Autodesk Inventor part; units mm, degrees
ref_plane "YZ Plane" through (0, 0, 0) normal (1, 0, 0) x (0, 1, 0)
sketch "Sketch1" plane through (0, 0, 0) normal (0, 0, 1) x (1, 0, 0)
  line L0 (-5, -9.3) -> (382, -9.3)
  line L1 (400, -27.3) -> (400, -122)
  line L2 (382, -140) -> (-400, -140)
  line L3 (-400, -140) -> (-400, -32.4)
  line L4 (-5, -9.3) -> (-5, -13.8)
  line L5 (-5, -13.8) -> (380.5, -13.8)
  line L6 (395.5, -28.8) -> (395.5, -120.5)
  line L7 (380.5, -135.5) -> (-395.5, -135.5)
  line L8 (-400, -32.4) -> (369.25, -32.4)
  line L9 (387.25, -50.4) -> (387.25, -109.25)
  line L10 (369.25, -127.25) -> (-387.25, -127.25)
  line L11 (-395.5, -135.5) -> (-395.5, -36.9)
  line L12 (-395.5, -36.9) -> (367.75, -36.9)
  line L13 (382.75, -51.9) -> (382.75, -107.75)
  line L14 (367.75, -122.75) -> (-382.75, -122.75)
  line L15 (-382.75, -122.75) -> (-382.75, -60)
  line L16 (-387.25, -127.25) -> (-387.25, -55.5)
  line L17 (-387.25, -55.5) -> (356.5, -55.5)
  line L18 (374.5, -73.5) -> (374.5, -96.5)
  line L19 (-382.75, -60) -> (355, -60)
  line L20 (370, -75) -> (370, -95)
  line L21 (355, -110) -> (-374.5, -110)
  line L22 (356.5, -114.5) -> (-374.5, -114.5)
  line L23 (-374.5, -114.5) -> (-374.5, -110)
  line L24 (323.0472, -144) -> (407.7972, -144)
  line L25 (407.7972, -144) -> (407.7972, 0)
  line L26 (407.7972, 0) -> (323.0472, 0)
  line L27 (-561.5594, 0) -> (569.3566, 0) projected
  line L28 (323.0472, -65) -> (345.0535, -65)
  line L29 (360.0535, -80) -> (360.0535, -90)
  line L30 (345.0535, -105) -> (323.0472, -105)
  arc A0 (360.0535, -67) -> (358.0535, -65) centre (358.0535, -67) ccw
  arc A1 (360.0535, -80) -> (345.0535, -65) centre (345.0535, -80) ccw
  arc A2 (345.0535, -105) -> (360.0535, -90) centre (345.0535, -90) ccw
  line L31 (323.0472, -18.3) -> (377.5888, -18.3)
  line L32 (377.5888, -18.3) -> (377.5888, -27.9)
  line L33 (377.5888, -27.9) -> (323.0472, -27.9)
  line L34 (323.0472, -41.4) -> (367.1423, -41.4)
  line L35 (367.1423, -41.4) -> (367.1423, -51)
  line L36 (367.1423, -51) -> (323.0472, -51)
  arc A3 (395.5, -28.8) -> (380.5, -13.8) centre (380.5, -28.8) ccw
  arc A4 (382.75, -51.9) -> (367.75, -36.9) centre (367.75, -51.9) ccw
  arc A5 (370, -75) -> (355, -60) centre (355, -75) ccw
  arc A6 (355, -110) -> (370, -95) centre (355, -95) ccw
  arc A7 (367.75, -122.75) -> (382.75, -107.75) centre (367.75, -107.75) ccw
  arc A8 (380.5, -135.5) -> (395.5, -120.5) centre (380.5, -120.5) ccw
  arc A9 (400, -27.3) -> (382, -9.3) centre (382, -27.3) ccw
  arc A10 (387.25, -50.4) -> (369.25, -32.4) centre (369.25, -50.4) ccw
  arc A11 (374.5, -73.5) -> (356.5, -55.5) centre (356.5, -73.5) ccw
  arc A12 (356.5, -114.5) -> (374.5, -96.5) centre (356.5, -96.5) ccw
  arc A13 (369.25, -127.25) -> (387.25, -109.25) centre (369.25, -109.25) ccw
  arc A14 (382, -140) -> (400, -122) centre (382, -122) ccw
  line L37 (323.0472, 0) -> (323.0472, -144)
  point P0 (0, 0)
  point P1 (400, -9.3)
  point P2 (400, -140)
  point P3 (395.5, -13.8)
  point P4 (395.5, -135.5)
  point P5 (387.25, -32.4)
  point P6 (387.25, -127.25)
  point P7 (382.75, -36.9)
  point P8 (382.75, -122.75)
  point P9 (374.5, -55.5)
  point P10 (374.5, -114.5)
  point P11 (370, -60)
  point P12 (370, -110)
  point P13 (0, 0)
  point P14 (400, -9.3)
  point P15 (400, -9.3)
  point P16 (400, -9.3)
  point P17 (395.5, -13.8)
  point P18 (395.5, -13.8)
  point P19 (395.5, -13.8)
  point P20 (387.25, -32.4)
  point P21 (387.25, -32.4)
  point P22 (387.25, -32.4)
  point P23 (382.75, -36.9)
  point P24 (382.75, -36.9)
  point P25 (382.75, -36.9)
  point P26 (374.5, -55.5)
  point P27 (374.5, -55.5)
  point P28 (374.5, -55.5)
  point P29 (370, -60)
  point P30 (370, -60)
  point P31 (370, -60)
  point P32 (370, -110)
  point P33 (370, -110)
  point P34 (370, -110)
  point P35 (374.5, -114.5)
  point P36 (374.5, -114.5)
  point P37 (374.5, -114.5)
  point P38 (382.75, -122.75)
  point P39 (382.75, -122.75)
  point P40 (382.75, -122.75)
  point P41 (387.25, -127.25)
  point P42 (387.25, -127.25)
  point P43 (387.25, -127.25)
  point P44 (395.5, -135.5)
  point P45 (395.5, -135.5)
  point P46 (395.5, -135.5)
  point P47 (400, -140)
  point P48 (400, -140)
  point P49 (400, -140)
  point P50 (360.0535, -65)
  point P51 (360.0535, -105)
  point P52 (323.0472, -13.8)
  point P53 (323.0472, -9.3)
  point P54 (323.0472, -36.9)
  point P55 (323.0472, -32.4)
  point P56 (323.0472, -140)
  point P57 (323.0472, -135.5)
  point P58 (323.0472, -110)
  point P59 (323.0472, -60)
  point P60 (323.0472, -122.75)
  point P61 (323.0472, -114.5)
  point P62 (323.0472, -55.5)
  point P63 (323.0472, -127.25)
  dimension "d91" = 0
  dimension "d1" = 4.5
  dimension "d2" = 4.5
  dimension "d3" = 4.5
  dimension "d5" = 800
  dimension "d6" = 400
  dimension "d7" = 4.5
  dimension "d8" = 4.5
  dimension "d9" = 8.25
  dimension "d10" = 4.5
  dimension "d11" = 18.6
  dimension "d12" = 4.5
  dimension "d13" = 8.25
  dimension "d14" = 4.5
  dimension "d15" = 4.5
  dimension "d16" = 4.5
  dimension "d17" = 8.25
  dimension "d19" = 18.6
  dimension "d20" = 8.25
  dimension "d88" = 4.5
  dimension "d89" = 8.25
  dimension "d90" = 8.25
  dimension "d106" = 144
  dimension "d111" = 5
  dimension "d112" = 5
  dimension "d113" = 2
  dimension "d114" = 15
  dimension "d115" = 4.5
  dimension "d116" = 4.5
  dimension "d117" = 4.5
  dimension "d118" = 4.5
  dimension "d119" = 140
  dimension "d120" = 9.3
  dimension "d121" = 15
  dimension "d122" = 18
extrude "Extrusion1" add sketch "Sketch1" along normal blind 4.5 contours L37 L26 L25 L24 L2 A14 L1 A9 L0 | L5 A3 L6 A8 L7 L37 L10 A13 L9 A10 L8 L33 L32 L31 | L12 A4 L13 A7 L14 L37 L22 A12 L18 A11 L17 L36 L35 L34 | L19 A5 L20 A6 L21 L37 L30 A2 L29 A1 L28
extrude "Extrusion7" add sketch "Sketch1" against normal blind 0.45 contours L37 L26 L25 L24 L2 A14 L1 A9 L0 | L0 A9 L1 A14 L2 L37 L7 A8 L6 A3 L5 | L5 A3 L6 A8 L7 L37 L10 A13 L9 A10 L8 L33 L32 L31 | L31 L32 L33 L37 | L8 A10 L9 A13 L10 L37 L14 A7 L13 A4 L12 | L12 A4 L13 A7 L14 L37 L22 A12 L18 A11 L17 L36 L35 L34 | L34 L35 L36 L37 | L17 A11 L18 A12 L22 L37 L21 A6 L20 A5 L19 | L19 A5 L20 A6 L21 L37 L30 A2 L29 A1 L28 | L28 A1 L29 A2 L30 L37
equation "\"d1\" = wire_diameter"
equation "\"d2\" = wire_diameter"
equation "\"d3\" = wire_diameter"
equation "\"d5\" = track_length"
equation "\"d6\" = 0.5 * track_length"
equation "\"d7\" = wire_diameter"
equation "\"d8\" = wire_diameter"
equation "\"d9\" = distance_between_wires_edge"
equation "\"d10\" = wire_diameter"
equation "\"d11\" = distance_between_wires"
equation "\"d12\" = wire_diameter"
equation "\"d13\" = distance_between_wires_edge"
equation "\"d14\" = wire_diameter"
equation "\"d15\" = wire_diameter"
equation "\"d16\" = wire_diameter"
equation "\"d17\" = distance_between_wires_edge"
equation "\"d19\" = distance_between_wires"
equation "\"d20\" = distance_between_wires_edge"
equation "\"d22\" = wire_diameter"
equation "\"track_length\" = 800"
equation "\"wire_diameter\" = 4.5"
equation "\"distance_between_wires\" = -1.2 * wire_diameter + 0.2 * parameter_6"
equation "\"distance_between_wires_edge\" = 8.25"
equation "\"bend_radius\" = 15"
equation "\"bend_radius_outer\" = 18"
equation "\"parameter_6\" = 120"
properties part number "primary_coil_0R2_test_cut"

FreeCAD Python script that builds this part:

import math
import FreeCAD as App
import Part
import Sketcher

V = App.Vector
Q = App.Units.Quantity

doc = App.newDocument("Part")
body = doc.addObject("PartDesign::Body", "Body")
body.AllowCompound = True

# Sketch on XY plane
sketch1 = body.newObject("Sketcher::SketchObject", "Sketch")
sketch1.AttachmentSupport = (doc.getObject("XY_Plane"), [""])
sketch1.MapMode = "FlatFace"
sketch1.addGeometry([
    Part.LineSegment(V(323, 0, 0), V(323, -9.3, 0)),  # 0
    Part.LineSegment(V(323, -9.3, 0), V(382, -9.3, 0)),  # 1
    Part.ArcOfCircle(Part.Circle(V(382, -27.3, 0), V(0, 0, 1), 18), math.radians(0), math.radians(90)),  # 2
    Part.LineSegment(V(400, -27.3, 0), V(400, -122, 0)),  # 3
    Part.ArcOfCircle(Part.Circle(V(382, -122, 0), V(0, 0, 1), 18), math.radians(-90), math.radians(0)),  # 4
    Part.LineSegment(V(382, -140, 0), V(323, -140, 0)),  # 5
    Part.LineSegment(V(323, -140, 0), V(323, -144, 0)),  # 6
    Part.LineSegment(V(323, -144, 0), V(407.8, -144, 0)),  # 7
    Part.LineSegment(V(407.8, -144, 0), V(407.8, 0, 0)),  # 8
    Part.LineSegment(V(407.8, 0, 0), V(323, 0, 0)),  # 9
    Part.LineSegment(V(380.5, -13.8, 0), V(323, -13.8, 0)),  # 10
    Part.LineSegment(V(323, -13.8, 0), V(323, -18.3, 0)),  # 11
    Part.LineSegment(V(323, -18.3, 0), V(377.6, -18.3, 0)),  # 12
    Part.LineSegment(V(377.6, -18.3, 0), V(377.6, -27.9, 0)),  # 13
    Part.LineSegment(V(377.6, -27.9, 0), V(323, -27.9, 0)),  # 14
    Part.LineSegment(V(323, -27.9, 0), V(323, -32.4, 0)),  # 15
    Part.LineSegment(V(323, -32.4, 0), V(369.2, -32.4, 0)),  # 16
    Part.ArcOfCircle(Part.Circle(V(369.2, -50.4, 0), V(0, 0, 1), 18), math.radians(0), math.radians(90)),  # 17
    Part.LineSegment(V(387.2, -50.4, 0), V(387.2, -109.2, 0)),  # 18
    Part.ArcOfCircle(Part.Circle(V(369.2, -109.2, 0), V(0, 0, 1), 18), math.radians(-90), math.radians(0)),  # 19
    Part.LineSegment(V(369.2, -127.2, 0), V(323, -127.2, 0)),  # 20
    Part.LineSegment(V(323, -127.2, 0), V(323, -135.5, 0)),  # 21
    Part.LineSegment(V(323, -135.5, 0), V(380.5, -135.5, 0)),  # 22
    Part.ArcOfCircle(Part.Circle(V(380.5, -120.5, 0), V(0, 0, 1), 15), math.radians(-90), math.radians(0)),  # 23
    Part.LineSegment(V(395.5, -120.5, 0), V(395.5, -28.8, 0)),  # 24
    Part.ArcOfCircle(Part.Circle(V(380.5, -28.8, 0), V(0, 0, 1), 15), math.radians(0), math.radians(90)),  # 25
    Part.LineSegment(V(367.8, -36.9, 0), V(323, -36.9, 0)),  # 26
    Part.LineSegment(V(323, -36.9, 0), V(323, -41.4, 0)),  # 27
    Part.LineSegment(V(323, -41.4, 0), V(367.1, -41.4, 0)),  # 28
    Part.LineSegment(V(367.1, -41.4, 0), V(367.1, -51, 0)),  # 29
    Part.LineSegment(V(367.1, -51, 0), V(323, -51, 0)),  # 30
    Part.LineSegment(V(323, -51, 0), V(323, -55.5, 0)),  # 31
    Part.LineSegment(V(323, -55.5, 0), V(356.5, -55.5, 0)),  # 32
    Part.ArcOfCircle(Part.Circle(V(356.5, -73.5, 0), V(0, 0, 1), 18), math.radians(0), math.radians(90)),  # 33
    Part.LineSegment(V(374.5, -73.5, 0), V(374.5, -96.5, 0)),  # 34
    Part.ArcOfCircle(Part.Circle(V(356.5, -96.5, 0), V(0, 0, 1), 18), math.radians(-90), math.radians(0)),  # 35
    Part.LineSegment(V(356.5, -114.5, 0), V(323, -114.5, 0)),  # 36
    Part.LineSegment(V(323, -114.5, 0), V(323, -122.8, 0)),  # 37
    Part.LineSegment(V(323, -122.8, 0), V(367.8, -122.8, 0)),  # 38
    Part.ArcOfCircle(Part.Circle(V(367.8, -107.8, 0), V(0, 0, 1), 15), math.radians(-90), math.radians(0)),  # 39
    Part.LineSegment(V(382.8, -107.8, 0), V(382.8, -51.9, 0)),  # 40
    Part.ArcOfCircle(Part.Circle(V(367.8, -51.9, 0), V(0, 0, 1), 15), math.radians(0), math.radians(90)),  # 41
    Part.LineSegment(V(355, -60, 0), V(323, -60, 0)),  # 42
    Part.LineSegment(V(323, -60, 0), V(323, -65, 0)),  # 43
    Part.LineSegment(V(323, -65, 0), V(345.1, -65, 0)),  # 44
    Part.ArcOfCircle(Part.Circle(V(345.1, -80, 0), V(0, 0, 1), 15), math.radians(0), math.radians(90)),  # 45
    Part.LineSegment(V(360.1, -80, 0), V(360.1, -90, 0)),  # 46
    Part.ArcOfCircle(Part.Circle(V(345.1, -90, 0), V(0, 0, 1), 15), math.radians(-90), math.radians(0)),  # 47
    Part.LineSegment(V(345.1, -105, 0), V(323, -105, 0)),  # 48
    Part.LineSegment(V(323, -105, 0), V(323, -110, 0)),  # 49
    Part.LineSegment(V(323, -110, 0), V(355, -110, 0)),  # 50
    Part.ArcOfCircle(Part.Circle(V(355, -95, 0), V(0, 0, 1), 15), math.radians(-90), math.radians(0)),  # 51
    Part.LineSegment(V(370, -95, 0), V(370, -75, 0)),  # 52
    Part.ArcOfCircle(Part.Circle(V(355, -75, 0), V(0, 0, 1), 15), math.radians(0), math.radians(90)),  # 53
], False)
sketch1.addConstraint([
    Sketcher.Constraint("Coincident", 0, 2, 1, 1),
    Sketcher.Constraint("Tangent", 1, 2, 2, 2),
    Sketcher.Constraint("Tangent", 2, 1, 3, 1),
    Sketcher.Constraint("Tangent", 3, 2, 4, 2),
    Sketcher.Constraint("Tangent", 4, 1, 5, 1),
    Sketcher.Constraint("Coincident", 5, 2, 6, 1),
    Sketcher.Constraint("Coincident", 6, 2, 7, 1),
    Sketcher.Constraint("Coincident", 7, 2, 8, 1),
    Sketcher.Constraint("Coincident", 8, 2, 9, 1),
    Sketcher.Constraint("Coincident", 9, 2, 0, 1),
    Sketcher.Constraint("Coincident", 10, 2, 11, 1),
    Sketcher.Constraint("Coincident", 11, 2, 12, 1),
    Sketcher.Constraint("Coincident", 12, 2, 13, 1),
    Sketcher.Constraint("Coincident", 13, 2, 14, 1),
    Sketcher.Constraint("Coincident", 14, 2, 15, 1),
    Sketcher.Constraint("Coincident", 15, 2, 16, 1),
    Sketcher.Constraint("Tangent", 16, 2, 17, 2),
    Sketcher.Constraint("Tangent", 17, 1, 18, 1),
    Sketcher.Constraint("Tangent", 18, 2, 19, 2),
    Sketcher.Constraint("Tangent", 19, 1, 20, 1),
    Sketcher.Constraint("Coincident", 20, 2, 21, 1),
    Sketcher.Constraint("Coincident", 21, 2, 22, 1),
    Sketcher.Constraint("Tangent", 22, 2, 23, 1),
    Sketcher.Constraint("Tangent", 23, 2, 24, 1),
    Sketcher.Constraint("Tangent", 24, 2, 25, 1),
    Sketcher.Constraint("Tangent", 25, 2, 10, 1),
    Sketcher.Constraint("Coincident", 26, 2, 27, 1),
    Sketcher.Constraint("Coincident", 27, 2, 28, 1),
    Sketcher.Constraint("Coincident", 28, 2, 29, 1),
    Sketcher.Constraint("Coincident", 29, 2, 30, 1),
    Sketcher.Constraint("Coincident", 30, 2, 31, 1),
    Sketcher.Constraint("Coincident", 31, 2, 32, 1),
    Sketcher.Constraint("Tangent", 32, 2, 33, 2),
    Sketcher.Constraint("Tangent", 33, 1, 34, 1),
    Sketcher.Constraint("Tangent", 34, 2, 35, 2),
    Sketcher.Constraint("Tangent", 35, 1, 36, 1),
    Sketcher.Constraint("Coincident", 36, 2, 37, 1),
    Sketcher.Constraint("Coincident", 37, 2, 38, 1),
    Sketcher.Constraint("Tangent", 38, 2, 39, 1),
    Sketcher.Constraint("Tangent", 39, 2, 40, 1),
    Sketcher.Constraint("Tangent", 40, 2, 41, 1),
    Sketcher.Constraint("Tangent", 41, 2, 26, 1),
    Sketcher.Constraint("Coincident", 42, 2, 43, 1),
    Sketcher.Constraint("Coincident", 43, 2, 44, 1),
    Sketcher.Constraint("Tangent", 44, 2, 45, 2),
    Sketcher.Constraint("Tangent", 45, 1, 46, 1),
    Sketcher.Constraint("Tangent", 46, 2, 47, 2),
    Sketcher.Constraint("Tangent", 47, 1, 48, 1),
    Sketcher.Constraint("Coincident", 48, 2, 49, 1),
    Sketcher.Constraint("Coincident", 49, 2, 50, 1),
    Sketcher.Constraint("Tangent", 50, 2, 51, 1),
    Sketcher.Constraint("Tangent", 51, 2, 52, 1),
    Sketcher.Constraint("Tangent", 52, 2, 53, 1),
    Sketcher.Constraint("Tangent", 53, 2, 42, 1),
    Sketcher.Constraint("Vertical", 0),
    Sketcher.Constraint("Horizontal", 1),
    Sketcher.Constraint("Vertical", 3),
    Sketcher.Constraint("Horizontal", 5),
    Sketcher.Constraint("Vertical", 6),
    Sketcher.Constraint("Horizontal", 7),
    Sketcher.Constraint("Vertical", 8),
    Sketcher.Constraint("Horizontal", 9),
    Sketcher.Constraint("Horizontal", 10),
    Sketcher.Constraint("Vertical", 11),
    Sketcher.Constraint("Horizontal", 12),
    Sketcher.Constraint("Vertical", 13),
    Sketcher.Constraint("Horizontal", 14),
    Sketcher.Constraint("Vertical", 15),
    Sketcher.Constraint("Horizontal", 16),
    Sketcher.Constraint("Vertical", 18),
    Sketcher.Constraint("Horizontal", 20),
    Sketcher.Constraint("Vertical", 21),
    Sketcher.Constraint("Horizontal", 22),
    Sketcher.Constraint("Vertical", 24),
    Sketcher.Constraint("Horizontal", 26),
    Sketcher.Constraint("Vertical", 27),
    Sketcher.Constraint("Horizontal", 28),
    Sketcher.Constraint("Vertical", 29),
    Sketcher.Constraint("Horizontal", 30),
    Sketcher.Constraint("Vertical", 31),
    Sketcher.Constraint("Horizontal", 32),
    Sketcher.Constraint("Vertical", 34),
    Sketcher.Constraint("Horizontal", 36),
    Sketcher.Constraint("Vertical", 37),
    Sketcher.Constraint("Horizontal", 38),
    Sketcher.Constraint("Vertical", 40),
    Sketcher.Constraint("Horizontal", 42),
    Sketcher.Constraint("Vertical", 43),
    Sketcher.Constraint("Horizontal", 44),
    Sketcher.Constraint("Vertical", 46),
    Sketcher.Constraint("Horizontal", 48),
    Sketcher.Constraint("Vertical", 49),
    Sketcher.Constraint("Horizontal", 50),
    Sketcher.Constraint("Vertical", 52),
    Sketcher.Constraint("Equal", 2, 4),
    Sketcher.Constraint("Equal", 4, 17),
    Sketcher.Constraint("Equal", 17, 19),
    Sketcher.Constraint("Equal", 23, 25),
    Sketcher.Constraint("Equal", 19, 33),
    Sketcher.Constraint("Equal", 33, 35),
    Sketcher.Constraint("Equal", 25, 39),
    Sketcher.Constraint("Equal", 39, 41),
    Sketcher.Constraint("Equal", 41, 45),
    Sketcher.Constraint("Equal", 45, 47),
    Sketcher.Constraint("Equal", 47, 51),
    Sketcher.Constraint("Equal", 51, 53),
    Sketcher.Constraint("PointOnObject", 8, 2, -1),
    Sketcher.Constraint("Vertical", 0, 2, 5, 2),
    Sketcher.Constraint("Vertical", 9, 2, 10, 2),
    Sketcher.Constraint("Vertical", 11, 2, 14, 2),
    Sketcher.Constraint("Vertical", 15, 2, 20, 2),
    Sketcher.Constraint("Vertical", 21, 2, 26, 2),
    Sketcher.Constraint("Vertical", 27, 2, 30, 2),
    Sketcher.Constraint("Vertical", 31, 2, 36, 2),
    Sketcher.Constraint("Vertical", 37, 2, 42, 2),
    Sketcher.Constraint("Vertical", 43, 2, 48, 2),
    Sketcher.Constraint("Equal", 11, 15),
    Sketcher.Constraint("Equal", 15, 27),
    Sketcher.Constraint("Equal", 13, 29),
    Sketcher.Constraint("Equal", 27, 31),
    Sketcher.Constraint("Equal", 21, 37),
    Sketcher.Constraint("Equal", 43, 49),
    Sketcher.Constraint("Radius", 2, Q("18 mm")),
    Sketcher.Constraint("Radius", 23, Q("15 mm")),
    Sketcher.Constraint("DistanceY", 8, 1, 8, 2, Q("144 mm")),
    Sketcher.Constraint("DistanceY", 43, 2, 43, 1, Q("5 mm")),
    Sketcher.Constraint("DistanceY", 0, 2, 0, 1, Q("9.3 mm")),
    Sketcher.Constraint("DistanceY", 11, 2, 11, 1, Q("4.5 mm")),
    Sketcher.Constraint("DistanceX", -1, 1, 2, 1, Q("400 mm")),
    Sketcher.Constraint("DistanceY", 4, 1, -1, 1, Q("140 mm")),
    Sketcher.Constraint("DistanceY", 21, 2, 21, 1, Q("8.25 mm")),
    Sketcher.Constraint("DistanceY", 34, 2, 34, 1, Q("23 mm")),
    Sketcher.Constraint("DistanceY", 46, 2, 46, 1, Q("10 mm")),
    Sketcher.Constraint("DistanceY", 13, 2, 13, 1, Q("9.6 mm")),
    Sketcher.Constraint("DistanceY", 24, 1, 24, 2, Q("91.7 mm")),
    Sketcher.Constraint("DistanceY", 45, 3, -1, 1, Q("80 mm")),
    Sketcher.Constraint("DistanceX", -1, 1, 51, 3, Q("355 mm")),
    Sketcher.Constraint("DistanceY", 29, 2, -1, 1, Q("51 mm")),
    Sketcher.Constraint("DistanceX", 7, 1, 7, 2, Q("84.75 mm")),
    Sketcher.Constraint("DistanceY", 17, 3, -1, 1, Q("50.4 mm")),
    Sketcher.Constraint("DistanceX", -1, 1, 23, 3, Q("380.5 mm")),
    Sketcher.Constraint("DistanceX", -1, 1, 33, 3, Q("356.5 mm")),
    Sketcher.Constraint("DistanceX", 28, 1, 28, 2, Q("44.095 mm")),
    Sketcher.Constraint("DistanceX", -1, 1, 17, 3, Q("369.25 mm")),
    Sketcher.Constraint("DistanceX", -1, 1, 39, 3, Q("367.75 mm")),
    Sketcher.Constraint("DistanceX", 1, 1, 1, 2, Q("58.9528 mm")),
    Sketcher.Constraint("DistanceX", 12, 1, 12, 2, Q("54.5416 mm")),
    Sketcher.Constraint("DistanceX", 44, 1, 44, 2, Q("22.0063 mm")),
])
pad1 = body.newObject("PartDesign::Pad", "Pad")
pad1.Profile = sketch1
pad1.Length = 4.5

# Sketch on XY plane
sketch2 = body.newObject("Sketcher::SketchObject", "Sketch001")
sketch2.AttachmentSupport = (doc.getObject("XY_Plane"), [""])
sketch2.MapMode = "FlatFace"
sketch2.addGeometry([
    Part.LineSegment(V(323, 0, 0), V(323, -144, 0)),
    Part.LineSegment(V(323, -144, 0), V(408, -144, 0)),
    Part.LineSegment(V(408, -144, 0), V(408, 0, 0)),
    Part.LineSegment(V(408, 0, 0), V(323, 0, 0)),
], False)
sketch2.addConstraint([
    Sketcher.Constraint("Coincident", 0, 2, 1, 1),
    Sketcher.Constraint("Coincident", 1, 2, 2, 1),
    Sketcher.Constraint("Coincident", 2, 2, 3, 1),
    Sketcher.Constraint("Coincident", 3, 2, 0, 1),
    Sketcher.Constraint("Vertical", 0),
    Sketcher.Constraint("Horizontal", 1),
    Sketcher.Constraint("Vertical", 2),
    Sketcher.Constraint("Horizontal", 3),
    Sketcher.Constraint("PointOnObject", 2, 2, -1),
    Sketcher.Constraint("DistanceY", 0, 2, 0, 1, Q("144 mm")),
    Sketcher.Constraint("DistanceX", 1, 1, 1, 2, Q("84.75 mm")),
    Sketcher.Constraint("DistanceX", -1, 1, 0, 2, Q("323.0472 mm")),
])
pad2 = body.newObject("PartDesign::Pad", "Pad001")
pad2.Profile = sketch2
pad2.Length = 0.45
pad2.Reversed = True

doc.recompute()
